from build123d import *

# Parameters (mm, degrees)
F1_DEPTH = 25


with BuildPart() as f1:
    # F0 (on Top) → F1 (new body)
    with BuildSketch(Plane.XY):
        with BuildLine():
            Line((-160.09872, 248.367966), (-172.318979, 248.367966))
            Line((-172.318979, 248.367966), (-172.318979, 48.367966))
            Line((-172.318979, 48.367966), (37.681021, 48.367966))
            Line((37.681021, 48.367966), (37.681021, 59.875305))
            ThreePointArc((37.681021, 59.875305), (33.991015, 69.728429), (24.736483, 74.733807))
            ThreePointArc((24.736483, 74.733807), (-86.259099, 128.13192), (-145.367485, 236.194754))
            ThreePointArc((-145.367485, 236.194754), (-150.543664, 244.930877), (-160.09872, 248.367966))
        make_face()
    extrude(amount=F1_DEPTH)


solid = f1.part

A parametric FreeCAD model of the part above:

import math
import FreeCAD as App
import Part
import Sketcher

V = App.Vector

doc = App.newDocument("Part")
body = doc.addObject("PartDesign::Body", "Body")

# Sketch on XY plane
sketch1 = body.newObject("Sketcher::SketchObject", "Sketch")
sketch1.AttachmentSupport = (doc.getObject("XY_Plane"), [""])
sketch1.MapMode = "FlatFace"
sketch1.addGeometry(Part.LineSegment(V(-160, 248, 0), V(-172, 248, 0)), False)
sketch1.addGeometry(Part.LineSegment(V(-172, 248, 0), V(-172, 48, 0)), False)
sketch1.addGeometry(Part.LineSegment(V(-172, 48, 0), V(38, 48, 0)), False)
sketch1.addGeometry(Part.LineSegment(V(38, 48, 0), V(38, 60, 0)), False)
sketch1.addGeometry(Part.ArcOfCircle(Part.Circle(V(23, 60, 0), V(0, 0, 1), 15), math.radians(0), math.radians(82)), False)
sketch1.addGeometry(Part.ArcOfCircle(Part.Circle(V(52, 274, 0), V(0, 0, 1), 201), math.radians(-169), math.radians(-98)), False)
sketch1.addGeometry(Part.ArcOfCircle(Part.Circle(V(-160, 233, 0), V(0, 0, 1), 15), math.radians(11), math.radians(90)), False)
sketch1.addConstraint(Sketcher.Constraint("Coincident", 0, 2, 1, 1))
sketch1.addConstraint(Sketcher.Constraint("Coincident", 1, 2, 2, 1))
sketch1.addConstraint(Sketcher.Constraint("Coincident", 2, 2, 3, 1))
sketch1.addConstraint(Sketcher.Constraint("Tangent", 3, 2, 4, 1))
sketch1.addConstraint(Sketcher.Constraint("Tangent", 4, 2, 5, 2))
sketch1.addConstraint(Sketcher.Constraint("Tangent", 5, 1, 6, 1))
sketch1.addConstraint(Sketcher.Constraint("Tangent", 6, 2, 0, 1))
sketch1.addConstraint(Sketcher.Constraint("Horizontal", 0))
sketch1.addConstraint(Sketcher.Constraint("Vertical", 1))
sketch1.addConstraint(Sketcher.Constraint("Horizontal", 2))
sketch1.addConstraint(Sketcher.Constraint("Vertical", 3))
sketch1.addConstraint(Sketcher.Constraint("Equal", 4, 6))
sketch1.addConstraint(Sketcher.Constraint("Radius", 4, 14.999999))
sketch1.addConstraint(Sketcher.Constraint("DistanceX", 2, 1, 2, 2, 210.0))
sketch1.addConstraint(Sketcher.Constraint("DistanceY", 1, 2, 1, 1, 200.0))
sketch1.addConstraint(Sketcher.Constraint("Radius", 5, 201.294192))
sketch1.addConstraint(Sketcher.Constraint("DistanceX", 0, 2, 0, 1, 12.220259))
sketch1.addConstraint(Sketcher.Constraint("DistanceY", 3, 1, 3, 2, 11.507339))
sketch1.addConstraint(Sketcher.Constraint("DistanceX", -1, 1, 5, 3, 52.319979))
sketch1.addConstraint(Sketcher.Constraint("DistanceY", -1, 1, 5, 3, 274.129149))
pad1 = body.newObject("PartDesign::Pad", "Pad")
pad1.Profile = sketch1
pad1.Length = 25

doc.recompute()
